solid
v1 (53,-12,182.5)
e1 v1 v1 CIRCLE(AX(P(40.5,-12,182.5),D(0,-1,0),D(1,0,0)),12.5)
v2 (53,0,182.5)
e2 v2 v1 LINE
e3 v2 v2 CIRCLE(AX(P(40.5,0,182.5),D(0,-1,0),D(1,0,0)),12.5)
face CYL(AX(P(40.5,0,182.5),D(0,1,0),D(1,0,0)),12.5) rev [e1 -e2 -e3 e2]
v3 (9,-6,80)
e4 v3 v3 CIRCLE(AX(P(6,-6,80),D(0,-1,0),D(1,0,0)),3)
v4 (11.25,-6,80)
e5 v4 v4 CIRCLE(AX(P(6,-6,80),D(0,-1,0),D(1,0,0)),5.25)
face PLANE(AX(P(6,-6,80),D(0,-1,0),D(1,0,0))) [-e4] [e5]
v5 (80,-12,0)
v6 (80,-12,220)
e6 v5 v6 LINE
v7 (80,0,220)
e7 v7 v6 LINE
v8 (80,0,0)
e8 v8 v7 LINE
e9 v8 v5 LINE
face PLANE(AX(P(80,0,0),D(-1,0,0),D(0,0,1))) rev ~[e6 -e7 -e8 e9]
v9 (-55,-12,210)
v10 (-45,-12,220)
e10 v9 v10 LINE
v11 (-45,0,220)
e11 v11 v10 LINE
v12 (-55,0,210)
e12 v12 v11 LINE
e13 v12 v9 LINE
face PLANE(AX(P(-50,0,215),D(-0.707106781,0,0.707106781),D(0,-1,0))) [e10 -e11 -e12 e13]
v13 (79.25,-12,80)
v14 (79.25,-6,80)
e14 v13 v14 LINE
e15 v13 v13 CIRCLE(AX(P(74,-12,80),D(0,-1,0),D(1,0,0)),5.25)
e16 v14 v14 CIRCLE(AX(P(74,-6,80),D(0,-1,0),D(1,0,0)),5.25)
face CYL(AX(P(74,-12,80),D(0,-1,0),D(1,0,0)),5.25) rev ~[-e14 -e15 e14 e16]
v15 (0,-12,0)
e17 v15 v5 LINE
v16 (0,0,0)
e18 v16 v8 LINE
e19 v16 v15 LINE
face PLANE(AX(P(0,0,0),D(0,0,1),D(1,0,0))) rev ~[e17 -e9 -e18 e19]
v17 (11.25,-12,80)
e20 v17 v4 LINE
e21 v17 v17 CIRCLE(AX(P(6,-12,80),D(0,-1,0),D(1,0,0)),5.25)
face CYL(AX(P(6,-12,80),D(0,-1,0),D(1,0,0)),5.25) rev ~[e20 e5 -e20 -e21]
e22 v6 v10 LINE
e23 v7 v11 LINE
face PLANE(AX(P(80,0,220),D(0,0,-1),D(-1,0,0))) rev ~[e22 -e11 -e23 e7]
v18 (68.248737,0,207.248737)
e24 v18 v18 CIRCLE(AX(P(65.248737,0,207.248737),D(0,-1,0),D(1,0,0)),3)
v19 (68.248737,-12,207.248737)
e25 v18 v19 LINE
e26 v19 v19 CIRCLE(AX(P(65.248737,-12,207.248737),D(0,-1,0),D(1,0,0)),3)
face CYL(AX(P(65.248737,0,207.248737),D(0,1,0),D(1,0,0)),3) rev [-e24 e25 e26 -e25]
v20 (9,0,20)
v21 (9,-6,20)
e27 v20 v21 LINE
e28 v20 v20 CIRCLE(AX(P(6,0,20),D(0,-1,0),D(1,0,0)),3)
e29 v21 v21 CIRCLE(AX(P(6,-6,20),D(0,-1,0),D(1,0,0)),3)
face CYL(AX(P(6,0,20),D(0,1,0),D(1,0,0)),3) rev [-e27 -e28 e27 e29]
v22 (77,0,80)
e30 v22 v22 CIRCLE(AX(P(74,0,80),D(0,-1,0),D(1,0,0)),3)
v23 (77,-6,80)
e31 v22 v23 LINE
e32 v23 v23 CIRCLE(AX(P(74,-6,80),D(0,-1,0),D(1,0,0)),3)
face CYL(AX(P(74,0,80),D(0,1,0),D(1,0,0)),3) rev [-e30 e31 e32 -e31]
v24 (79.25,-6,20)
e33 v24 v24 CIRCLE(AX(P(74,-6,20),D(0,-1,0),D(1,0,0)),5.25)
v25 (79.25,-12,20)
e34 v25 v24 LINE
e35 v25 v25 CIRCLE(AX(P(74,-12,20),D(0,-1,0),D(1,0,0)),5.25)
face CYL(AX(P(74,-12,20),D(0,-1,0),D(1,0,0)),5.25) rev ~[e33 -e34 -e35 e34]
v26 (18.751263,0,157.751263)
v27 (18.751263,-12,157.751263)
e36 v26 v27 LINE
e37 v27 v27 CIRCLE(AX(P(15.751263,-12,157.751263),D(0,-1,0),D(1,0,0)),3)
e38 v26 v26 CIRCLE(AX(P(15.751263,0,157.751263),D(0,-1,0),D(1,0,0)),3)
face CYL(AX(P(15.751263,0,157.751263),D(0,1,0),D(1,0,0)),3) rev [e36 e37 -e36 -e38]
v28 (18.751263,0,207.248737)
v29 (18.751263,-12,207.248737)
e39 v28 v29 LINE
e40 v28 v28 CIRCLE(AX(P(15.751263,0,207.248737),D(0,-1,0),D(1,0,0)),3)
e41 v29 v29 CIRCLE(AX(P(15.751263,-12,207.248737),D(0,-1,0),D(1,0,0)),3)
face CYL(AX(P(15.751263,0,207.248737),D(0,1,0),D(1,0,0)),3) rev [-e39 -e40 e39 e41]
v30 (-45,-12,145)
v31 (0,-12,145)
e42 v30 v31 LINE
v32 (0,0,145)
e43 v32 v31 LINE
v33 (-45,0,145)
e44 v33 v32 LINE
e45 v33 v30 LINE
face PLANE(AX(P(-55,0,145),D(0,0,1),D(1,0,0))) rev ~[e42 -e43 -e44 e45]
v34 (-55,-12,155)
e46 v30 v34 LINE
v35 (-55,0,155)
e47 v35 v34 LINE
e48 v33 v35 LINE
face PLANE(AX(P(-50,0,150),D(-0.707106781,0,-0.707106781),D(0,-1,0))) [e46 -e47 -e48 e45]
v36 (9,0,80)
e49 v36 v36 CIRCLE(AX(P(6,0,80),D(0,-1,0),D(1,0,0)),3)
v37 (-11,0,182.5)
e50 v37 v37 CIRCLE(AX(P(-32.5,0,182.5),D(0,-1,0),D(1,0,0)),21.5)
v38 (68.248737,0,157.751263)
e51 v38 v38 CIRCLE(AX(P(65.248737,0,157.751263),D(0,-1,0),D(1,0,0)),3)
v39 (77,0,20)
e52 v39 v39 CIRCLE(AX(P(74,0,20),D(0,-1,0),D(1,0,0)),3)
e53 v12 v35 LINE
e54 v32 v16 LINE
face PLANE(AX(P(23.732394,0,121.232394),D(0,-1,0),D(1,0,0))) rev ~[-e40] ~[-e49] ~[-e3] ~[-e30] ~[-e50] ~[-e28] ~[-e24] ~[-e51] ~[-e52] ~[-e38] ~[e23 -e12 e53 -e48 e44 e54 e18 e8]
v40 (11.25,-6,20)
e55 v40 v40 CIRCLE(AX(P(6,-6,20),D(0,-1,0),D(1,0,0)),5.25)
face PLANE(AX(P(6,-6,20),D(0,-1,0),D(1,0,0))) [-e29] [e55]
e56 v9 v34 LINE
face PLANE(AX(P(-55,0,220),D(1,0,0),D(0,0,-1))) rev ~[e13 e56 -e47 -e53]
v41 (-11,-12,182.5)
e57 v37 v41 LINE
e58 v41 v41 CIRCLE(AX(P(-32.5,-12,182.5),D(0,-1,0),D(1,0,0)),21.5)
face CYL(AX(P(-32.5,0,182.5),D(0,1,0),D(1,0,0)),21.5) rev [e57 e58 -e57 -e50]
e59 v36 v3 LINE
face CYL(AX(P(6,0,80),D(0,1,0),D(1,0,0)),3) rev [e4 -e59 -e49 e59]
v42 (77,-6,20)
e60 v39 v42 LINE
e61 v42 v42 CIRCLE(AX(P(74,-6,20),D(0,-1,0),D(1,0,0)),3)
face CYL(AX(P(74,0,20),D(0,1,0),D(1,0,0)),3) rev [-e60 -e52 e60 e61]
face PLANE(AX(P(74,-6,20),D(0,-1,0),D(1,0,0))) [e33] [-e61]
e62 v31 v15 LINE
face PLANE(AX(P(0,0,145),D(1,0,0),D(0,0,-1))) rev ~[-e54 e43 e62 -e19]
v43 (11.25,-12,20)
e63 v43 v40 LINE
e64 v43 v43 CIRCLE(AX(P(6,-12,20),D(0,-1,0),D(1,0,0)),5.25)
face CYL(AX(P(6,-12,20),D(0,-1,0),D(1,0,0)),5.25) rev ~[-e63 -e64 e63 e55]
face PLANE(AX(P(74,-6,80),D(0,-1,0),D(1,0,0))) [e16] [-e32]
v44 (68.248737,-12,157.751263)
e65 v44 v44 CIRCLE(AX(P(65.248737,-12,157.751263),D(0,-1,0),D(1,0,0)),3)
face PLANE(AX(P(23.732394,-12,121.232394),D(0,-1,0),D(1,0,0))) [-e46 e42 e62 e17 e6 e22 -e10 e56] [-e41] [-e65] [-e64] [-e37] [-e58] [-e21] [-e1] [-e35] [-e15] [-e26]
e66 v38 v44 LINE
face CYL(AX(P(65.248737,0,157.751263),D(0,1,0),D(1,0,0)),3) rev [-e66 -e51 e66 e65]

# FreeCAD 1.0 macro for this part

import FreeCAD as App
import Part
import Sketcher

V = App.Vector
Q = App.Units.Quantity


def edges_at(feature, points):
    """Names of the edges that pass closest to the given points."""
    edges = feature.Shape.Edges
    near = lambda p: min(range(len(edges)), key=lambda i: edges[i].distToShape(Part.Vertex(*p))[0])
    return sorted({f"Edge{near(p) + 1}" for p in points})

doc = App.newDocument("Part")
body = doc.addObject("PartDesign::Body", "Body")

# Sketch on XZ plane
sketch1 = body.newObject("Sketcher::SketchObject", "Sketch")
sketch1.AttachmentSupport = (doc.getObject("XZ_Plane"), [""])
sketch1.MapMode = "FlatFace"
sketch1.addGeometry([
    Part.LineSegment(V(0, 145, 0), V(0, 0, 0)),  # 0
    Part.LineSegment(V(0, 0, 0), V(80, 0, 0)),  # 1
    Part.LineSegment(V(80, 0, 0), V(80, 220, 0)),  # 2
    Part.LineSegment(V(80, 220, 0), V(-55, 220, 0)),  # 3
    Part.LineSegment(V(-55, 220, 0), V(-55, 145, 0)),  # 4
    Part.LineSegment(V(-55, 145, 0), V(0, 145, 0)),  # 5
    Part.Circle(V(6, 20, 0), V(0, 0, 1), 3),  # 6
    Part.Circle(V(6, 80, 0), V(0, 0, 1), 3),  # 7
    Part.Circle(V(74, 20, 0), V(0, 0, 1), 3),  # 8
    Part.Circle(V(74, 80, 0), V(0, 0, 1), 3),  # 9
    Part.Circle(V(-32.5, 182.5, 0), V(0, 0, 1), 21.5),  # 10
    Part.Circle(V(15.8, 157.8, 0), V(0, 0, 1), 3),  # 11
    Part.Circle(V(65.2, 157.8, 0), V(0, 0, 1), 3),  # 12
    Part.Circle(V(40.5, 182.5, 0), V(0, 0, 1), 12.5),  # 13
    Part.Circle(V(15.8, 207.2, 0), V(0, 0, 1), 3),  # 14
    Part.Circle(V(65.2, 207.2, 0), V(0, 0, 1), 3),  # 15
], False)
sketch1.addConstraint([
    Sketcher.Constraint("Coincident", 0, 2, 1, 1),
    Sketcher.Constraint("Coincident", 1, 2, 2, 1),
    Sketcher.Constraint("Coincident", 2, 2, 3, 1),
    Sketcher.Constraint("Coincident", 3, 2, 4, 1),
    Sketcher.Constraint("Coincident", 4, 2, 5, 1),
    Sketcher.Constraint("Coincident", 5, 2, 0, 1),
    Sketcher.Constraint("Vertical", 0),
    Sketcher.Constraint("Horizontal", 1),
    Sketcher.Constraint("Vertical", 2),
    Sketcher.Constraint("Horizontal", 3),
    Sketcher.Constraint("Vertical", 4),
    Sketcher.Constraint("Horizontal", 5),
    Sketcher.Constraint("Coincident", 0, 2, -1, 1),
    Sketcher.Constraint("Equal", 6, 7),
    Sketcher.Constraint("Equal", 7, 8),
    Sketcher.Constraint("Equal", 8, 9),
    Sketcher.Constraint("Equal", 9, 11),
    Sketcher.Constraint("Equal", 11, 12),
    Sketcher.Constraint("Equal", 12, 14),
    Sketcher.Constraint("Equal", 14, 15),
    Sketcher.Constraint("Horizontal", 6, 3, 8, 3),
    Sketcher.Constraint("Horizontal", 7, 3, 9, 3),
    Sketcher.Constraint("Horizontal", 11, 3, 12, 3),
    Sketcher.Constraint("Horizontal", 10, 3, 13, 3),
    Sketcher.Constraint("Horizontal", 14, 3, 15, 3),
    Sketcher.Constraint("Vertical", 6, 3, 7, 3),
    Sketcher.Constraint("Vertical", 8, 3, 9, 3),
    Sketcher.Constraint("Vertical", 11, 3, 14, 3),
    Sketcher.Constraint("Vertical", 12, 3, 15, 3),
    Sketcher.Constraint("Diameter", 6, Q("6 mm")),
    Sketcher.Constraint("Diameter", 10, Q("43 mm")),
    Sketcher.Constraint("Diameter", 13, Q("25 mm")),
    Sketcher.Constraint("DistanceX", 1, 1, 1, 2, Q("80 mm")),
    Sketcher.Constraint("DistanceX", 3, 2, 3, 1, Q("135 mm")),
    Sketcher.Constraint("DistanceY", 0, 2, 0, 1, Q("145 mm")),
    Sketcher.Constraint("DistanceY", 2, 1, 2, 2, Q("220 mm")),
    Sketcher.Constraint("DistanceX", -1, 1, 6, 3, Q("6 mm")),
    Sketcher.Constraint("DistanceY", -1, 1, 6, 3, Q("20 mm")),
    Sketcher.Constraint("DistanceY", -1, 1, 7, 3, Q("80 mm")),
    Sketcher.Constraint("DistanceX", -1, 1, 8, 3, Q("74 mm")),
    Sketcher.Constraint("DistanceX", 10, 3, 13, 3, Q("73 mm")),
    Sketcher.Constraint("DistanceX", 10, 3, -1, 1, Q("32.5 mm")),
    Sketcher.Constraint("DistanceY", -1, 1, 10, 3, Q("182.5 mm")),
    Sketcher.Constraint("DistanceX", -1, 1, 11, 3, Q("15.751263 mm")),
    Sketcher.Constraint("DistanceY", -1, 1, 11, 3, Q("157.751263 mm")),
    Sketcher.Constraint("DistanceX", -1, 1, 12, 3, Q("65.248737 mm")),
    Sketcher.Constraint("DistanceY", -1, 1, 14, 3, Q("207.248737 mm")),
])
pad1 = body.newObject("PartDesign::Pad", "Pad")
pad1.Profile = sketch1
pad1.Length = 12
doc.recompute()

chamfer = body.newObject("PartDesign::Chamfer", "Chamfer")
chamfer.Base = (pad1, edges_at(pad1, [(-55, -6, 220), (-55, -6, 145)]))
chamfer.Size = 10

# Sketch on XZ plane
sketch2 = body.newObject("Sketcher::SketchObject", "Sketch001")
sketch2.AttachmentSupport = (doc.getObject("XZ_Plane"), [""])
sketch2.MapMode = "FlatFace"
sketch2.AttachmentOffset = App.Placement(V(0, 0, 12), App.Rotation())
sketch2.addGeometry([
    Part.Circle(V(6, 80, 0), V(0, 0, 1), 5.2),  # 0
    Part.Circle(V(6, 80, 0), V(0, 0, 1), 3),  # 1
    Part.Circle(V(74, 80, 0), V(0, 0, 1), 5.2),  # 2
    Part.Circle(V(74, 80, 0), V(0, 0, 1), 3),  # 3
    Part.Circle(V(74, 20, 0), V(0, 0, 1), 5.2),  # 4
    Part.Circle(V(74, 20, 0), V(0, 0, 1), 3),  # 5
    Part.Circle(V(6, 20, 0), V(0, 0, 1), 5.2),  # 6
    Part.Circle(V(6, 20, 0), V(0, 0, 1), 3),  # 7
], False)
sketch2.addConstraint([
    Sketcher.Constraint("Coincident", 1, 3, 0, 3),
    Sketcher.Constraint("Coincident", 3, 3, 2, 3),
    Sketcher.Constraint("Coincident", 5, 3, 4, 3),
    Sketcher.Constraint("Coincident", 7, 3, 6, 3),
    Sketcher.Constraint("Equal", 0, 2),
    Sketcher.Constraint("Equal", 1, 3),
    Sketcher.Constraint("Equal", 2, 4),
    Sketcher.Constraint("Equal", 3, 5),
    Sketcher.Constraint("Equal", 4, 6),
    Sketcher.Constraint("Equal", 5, 7),
    Sketcher.Constraint("Horizontal", 1, 3, 2, 3),
    Sketcher.Constraint("Horizontal", 5, 3, 6, 3),
    Sketcher.Constraint("Vertical", 3, 3, 4, 3),
    Sketcher.Constraint("Vertical", 1, 3, 6, 3),
    Sketcher.Constraint("Diameter", 1, Q("6 mm")),
    Sketcher.Constraint("Diameter", 0, Q("10.5 mm")),
    Sketcher.Constraint("DistanceX", -1, 1, 0, 3, Q("6 mm")),
    Sketcher.Constraint("DistanceY", -1, 1, 0, 3, Q("80 mm")),
    Sketcher.Constraint("DistanceX", -1, 1, 2, 3, Q("74 mm")),
    Sketcher.Constraint("DistanceY", -1, 1, 4, 3, Q("20 mm")),
])
pocket1 = body.newObject("PartDesign::Pocket", "Pocket")
pocket1.Profile = sketch2
pocket1.Length = 6

doc.recompute()
